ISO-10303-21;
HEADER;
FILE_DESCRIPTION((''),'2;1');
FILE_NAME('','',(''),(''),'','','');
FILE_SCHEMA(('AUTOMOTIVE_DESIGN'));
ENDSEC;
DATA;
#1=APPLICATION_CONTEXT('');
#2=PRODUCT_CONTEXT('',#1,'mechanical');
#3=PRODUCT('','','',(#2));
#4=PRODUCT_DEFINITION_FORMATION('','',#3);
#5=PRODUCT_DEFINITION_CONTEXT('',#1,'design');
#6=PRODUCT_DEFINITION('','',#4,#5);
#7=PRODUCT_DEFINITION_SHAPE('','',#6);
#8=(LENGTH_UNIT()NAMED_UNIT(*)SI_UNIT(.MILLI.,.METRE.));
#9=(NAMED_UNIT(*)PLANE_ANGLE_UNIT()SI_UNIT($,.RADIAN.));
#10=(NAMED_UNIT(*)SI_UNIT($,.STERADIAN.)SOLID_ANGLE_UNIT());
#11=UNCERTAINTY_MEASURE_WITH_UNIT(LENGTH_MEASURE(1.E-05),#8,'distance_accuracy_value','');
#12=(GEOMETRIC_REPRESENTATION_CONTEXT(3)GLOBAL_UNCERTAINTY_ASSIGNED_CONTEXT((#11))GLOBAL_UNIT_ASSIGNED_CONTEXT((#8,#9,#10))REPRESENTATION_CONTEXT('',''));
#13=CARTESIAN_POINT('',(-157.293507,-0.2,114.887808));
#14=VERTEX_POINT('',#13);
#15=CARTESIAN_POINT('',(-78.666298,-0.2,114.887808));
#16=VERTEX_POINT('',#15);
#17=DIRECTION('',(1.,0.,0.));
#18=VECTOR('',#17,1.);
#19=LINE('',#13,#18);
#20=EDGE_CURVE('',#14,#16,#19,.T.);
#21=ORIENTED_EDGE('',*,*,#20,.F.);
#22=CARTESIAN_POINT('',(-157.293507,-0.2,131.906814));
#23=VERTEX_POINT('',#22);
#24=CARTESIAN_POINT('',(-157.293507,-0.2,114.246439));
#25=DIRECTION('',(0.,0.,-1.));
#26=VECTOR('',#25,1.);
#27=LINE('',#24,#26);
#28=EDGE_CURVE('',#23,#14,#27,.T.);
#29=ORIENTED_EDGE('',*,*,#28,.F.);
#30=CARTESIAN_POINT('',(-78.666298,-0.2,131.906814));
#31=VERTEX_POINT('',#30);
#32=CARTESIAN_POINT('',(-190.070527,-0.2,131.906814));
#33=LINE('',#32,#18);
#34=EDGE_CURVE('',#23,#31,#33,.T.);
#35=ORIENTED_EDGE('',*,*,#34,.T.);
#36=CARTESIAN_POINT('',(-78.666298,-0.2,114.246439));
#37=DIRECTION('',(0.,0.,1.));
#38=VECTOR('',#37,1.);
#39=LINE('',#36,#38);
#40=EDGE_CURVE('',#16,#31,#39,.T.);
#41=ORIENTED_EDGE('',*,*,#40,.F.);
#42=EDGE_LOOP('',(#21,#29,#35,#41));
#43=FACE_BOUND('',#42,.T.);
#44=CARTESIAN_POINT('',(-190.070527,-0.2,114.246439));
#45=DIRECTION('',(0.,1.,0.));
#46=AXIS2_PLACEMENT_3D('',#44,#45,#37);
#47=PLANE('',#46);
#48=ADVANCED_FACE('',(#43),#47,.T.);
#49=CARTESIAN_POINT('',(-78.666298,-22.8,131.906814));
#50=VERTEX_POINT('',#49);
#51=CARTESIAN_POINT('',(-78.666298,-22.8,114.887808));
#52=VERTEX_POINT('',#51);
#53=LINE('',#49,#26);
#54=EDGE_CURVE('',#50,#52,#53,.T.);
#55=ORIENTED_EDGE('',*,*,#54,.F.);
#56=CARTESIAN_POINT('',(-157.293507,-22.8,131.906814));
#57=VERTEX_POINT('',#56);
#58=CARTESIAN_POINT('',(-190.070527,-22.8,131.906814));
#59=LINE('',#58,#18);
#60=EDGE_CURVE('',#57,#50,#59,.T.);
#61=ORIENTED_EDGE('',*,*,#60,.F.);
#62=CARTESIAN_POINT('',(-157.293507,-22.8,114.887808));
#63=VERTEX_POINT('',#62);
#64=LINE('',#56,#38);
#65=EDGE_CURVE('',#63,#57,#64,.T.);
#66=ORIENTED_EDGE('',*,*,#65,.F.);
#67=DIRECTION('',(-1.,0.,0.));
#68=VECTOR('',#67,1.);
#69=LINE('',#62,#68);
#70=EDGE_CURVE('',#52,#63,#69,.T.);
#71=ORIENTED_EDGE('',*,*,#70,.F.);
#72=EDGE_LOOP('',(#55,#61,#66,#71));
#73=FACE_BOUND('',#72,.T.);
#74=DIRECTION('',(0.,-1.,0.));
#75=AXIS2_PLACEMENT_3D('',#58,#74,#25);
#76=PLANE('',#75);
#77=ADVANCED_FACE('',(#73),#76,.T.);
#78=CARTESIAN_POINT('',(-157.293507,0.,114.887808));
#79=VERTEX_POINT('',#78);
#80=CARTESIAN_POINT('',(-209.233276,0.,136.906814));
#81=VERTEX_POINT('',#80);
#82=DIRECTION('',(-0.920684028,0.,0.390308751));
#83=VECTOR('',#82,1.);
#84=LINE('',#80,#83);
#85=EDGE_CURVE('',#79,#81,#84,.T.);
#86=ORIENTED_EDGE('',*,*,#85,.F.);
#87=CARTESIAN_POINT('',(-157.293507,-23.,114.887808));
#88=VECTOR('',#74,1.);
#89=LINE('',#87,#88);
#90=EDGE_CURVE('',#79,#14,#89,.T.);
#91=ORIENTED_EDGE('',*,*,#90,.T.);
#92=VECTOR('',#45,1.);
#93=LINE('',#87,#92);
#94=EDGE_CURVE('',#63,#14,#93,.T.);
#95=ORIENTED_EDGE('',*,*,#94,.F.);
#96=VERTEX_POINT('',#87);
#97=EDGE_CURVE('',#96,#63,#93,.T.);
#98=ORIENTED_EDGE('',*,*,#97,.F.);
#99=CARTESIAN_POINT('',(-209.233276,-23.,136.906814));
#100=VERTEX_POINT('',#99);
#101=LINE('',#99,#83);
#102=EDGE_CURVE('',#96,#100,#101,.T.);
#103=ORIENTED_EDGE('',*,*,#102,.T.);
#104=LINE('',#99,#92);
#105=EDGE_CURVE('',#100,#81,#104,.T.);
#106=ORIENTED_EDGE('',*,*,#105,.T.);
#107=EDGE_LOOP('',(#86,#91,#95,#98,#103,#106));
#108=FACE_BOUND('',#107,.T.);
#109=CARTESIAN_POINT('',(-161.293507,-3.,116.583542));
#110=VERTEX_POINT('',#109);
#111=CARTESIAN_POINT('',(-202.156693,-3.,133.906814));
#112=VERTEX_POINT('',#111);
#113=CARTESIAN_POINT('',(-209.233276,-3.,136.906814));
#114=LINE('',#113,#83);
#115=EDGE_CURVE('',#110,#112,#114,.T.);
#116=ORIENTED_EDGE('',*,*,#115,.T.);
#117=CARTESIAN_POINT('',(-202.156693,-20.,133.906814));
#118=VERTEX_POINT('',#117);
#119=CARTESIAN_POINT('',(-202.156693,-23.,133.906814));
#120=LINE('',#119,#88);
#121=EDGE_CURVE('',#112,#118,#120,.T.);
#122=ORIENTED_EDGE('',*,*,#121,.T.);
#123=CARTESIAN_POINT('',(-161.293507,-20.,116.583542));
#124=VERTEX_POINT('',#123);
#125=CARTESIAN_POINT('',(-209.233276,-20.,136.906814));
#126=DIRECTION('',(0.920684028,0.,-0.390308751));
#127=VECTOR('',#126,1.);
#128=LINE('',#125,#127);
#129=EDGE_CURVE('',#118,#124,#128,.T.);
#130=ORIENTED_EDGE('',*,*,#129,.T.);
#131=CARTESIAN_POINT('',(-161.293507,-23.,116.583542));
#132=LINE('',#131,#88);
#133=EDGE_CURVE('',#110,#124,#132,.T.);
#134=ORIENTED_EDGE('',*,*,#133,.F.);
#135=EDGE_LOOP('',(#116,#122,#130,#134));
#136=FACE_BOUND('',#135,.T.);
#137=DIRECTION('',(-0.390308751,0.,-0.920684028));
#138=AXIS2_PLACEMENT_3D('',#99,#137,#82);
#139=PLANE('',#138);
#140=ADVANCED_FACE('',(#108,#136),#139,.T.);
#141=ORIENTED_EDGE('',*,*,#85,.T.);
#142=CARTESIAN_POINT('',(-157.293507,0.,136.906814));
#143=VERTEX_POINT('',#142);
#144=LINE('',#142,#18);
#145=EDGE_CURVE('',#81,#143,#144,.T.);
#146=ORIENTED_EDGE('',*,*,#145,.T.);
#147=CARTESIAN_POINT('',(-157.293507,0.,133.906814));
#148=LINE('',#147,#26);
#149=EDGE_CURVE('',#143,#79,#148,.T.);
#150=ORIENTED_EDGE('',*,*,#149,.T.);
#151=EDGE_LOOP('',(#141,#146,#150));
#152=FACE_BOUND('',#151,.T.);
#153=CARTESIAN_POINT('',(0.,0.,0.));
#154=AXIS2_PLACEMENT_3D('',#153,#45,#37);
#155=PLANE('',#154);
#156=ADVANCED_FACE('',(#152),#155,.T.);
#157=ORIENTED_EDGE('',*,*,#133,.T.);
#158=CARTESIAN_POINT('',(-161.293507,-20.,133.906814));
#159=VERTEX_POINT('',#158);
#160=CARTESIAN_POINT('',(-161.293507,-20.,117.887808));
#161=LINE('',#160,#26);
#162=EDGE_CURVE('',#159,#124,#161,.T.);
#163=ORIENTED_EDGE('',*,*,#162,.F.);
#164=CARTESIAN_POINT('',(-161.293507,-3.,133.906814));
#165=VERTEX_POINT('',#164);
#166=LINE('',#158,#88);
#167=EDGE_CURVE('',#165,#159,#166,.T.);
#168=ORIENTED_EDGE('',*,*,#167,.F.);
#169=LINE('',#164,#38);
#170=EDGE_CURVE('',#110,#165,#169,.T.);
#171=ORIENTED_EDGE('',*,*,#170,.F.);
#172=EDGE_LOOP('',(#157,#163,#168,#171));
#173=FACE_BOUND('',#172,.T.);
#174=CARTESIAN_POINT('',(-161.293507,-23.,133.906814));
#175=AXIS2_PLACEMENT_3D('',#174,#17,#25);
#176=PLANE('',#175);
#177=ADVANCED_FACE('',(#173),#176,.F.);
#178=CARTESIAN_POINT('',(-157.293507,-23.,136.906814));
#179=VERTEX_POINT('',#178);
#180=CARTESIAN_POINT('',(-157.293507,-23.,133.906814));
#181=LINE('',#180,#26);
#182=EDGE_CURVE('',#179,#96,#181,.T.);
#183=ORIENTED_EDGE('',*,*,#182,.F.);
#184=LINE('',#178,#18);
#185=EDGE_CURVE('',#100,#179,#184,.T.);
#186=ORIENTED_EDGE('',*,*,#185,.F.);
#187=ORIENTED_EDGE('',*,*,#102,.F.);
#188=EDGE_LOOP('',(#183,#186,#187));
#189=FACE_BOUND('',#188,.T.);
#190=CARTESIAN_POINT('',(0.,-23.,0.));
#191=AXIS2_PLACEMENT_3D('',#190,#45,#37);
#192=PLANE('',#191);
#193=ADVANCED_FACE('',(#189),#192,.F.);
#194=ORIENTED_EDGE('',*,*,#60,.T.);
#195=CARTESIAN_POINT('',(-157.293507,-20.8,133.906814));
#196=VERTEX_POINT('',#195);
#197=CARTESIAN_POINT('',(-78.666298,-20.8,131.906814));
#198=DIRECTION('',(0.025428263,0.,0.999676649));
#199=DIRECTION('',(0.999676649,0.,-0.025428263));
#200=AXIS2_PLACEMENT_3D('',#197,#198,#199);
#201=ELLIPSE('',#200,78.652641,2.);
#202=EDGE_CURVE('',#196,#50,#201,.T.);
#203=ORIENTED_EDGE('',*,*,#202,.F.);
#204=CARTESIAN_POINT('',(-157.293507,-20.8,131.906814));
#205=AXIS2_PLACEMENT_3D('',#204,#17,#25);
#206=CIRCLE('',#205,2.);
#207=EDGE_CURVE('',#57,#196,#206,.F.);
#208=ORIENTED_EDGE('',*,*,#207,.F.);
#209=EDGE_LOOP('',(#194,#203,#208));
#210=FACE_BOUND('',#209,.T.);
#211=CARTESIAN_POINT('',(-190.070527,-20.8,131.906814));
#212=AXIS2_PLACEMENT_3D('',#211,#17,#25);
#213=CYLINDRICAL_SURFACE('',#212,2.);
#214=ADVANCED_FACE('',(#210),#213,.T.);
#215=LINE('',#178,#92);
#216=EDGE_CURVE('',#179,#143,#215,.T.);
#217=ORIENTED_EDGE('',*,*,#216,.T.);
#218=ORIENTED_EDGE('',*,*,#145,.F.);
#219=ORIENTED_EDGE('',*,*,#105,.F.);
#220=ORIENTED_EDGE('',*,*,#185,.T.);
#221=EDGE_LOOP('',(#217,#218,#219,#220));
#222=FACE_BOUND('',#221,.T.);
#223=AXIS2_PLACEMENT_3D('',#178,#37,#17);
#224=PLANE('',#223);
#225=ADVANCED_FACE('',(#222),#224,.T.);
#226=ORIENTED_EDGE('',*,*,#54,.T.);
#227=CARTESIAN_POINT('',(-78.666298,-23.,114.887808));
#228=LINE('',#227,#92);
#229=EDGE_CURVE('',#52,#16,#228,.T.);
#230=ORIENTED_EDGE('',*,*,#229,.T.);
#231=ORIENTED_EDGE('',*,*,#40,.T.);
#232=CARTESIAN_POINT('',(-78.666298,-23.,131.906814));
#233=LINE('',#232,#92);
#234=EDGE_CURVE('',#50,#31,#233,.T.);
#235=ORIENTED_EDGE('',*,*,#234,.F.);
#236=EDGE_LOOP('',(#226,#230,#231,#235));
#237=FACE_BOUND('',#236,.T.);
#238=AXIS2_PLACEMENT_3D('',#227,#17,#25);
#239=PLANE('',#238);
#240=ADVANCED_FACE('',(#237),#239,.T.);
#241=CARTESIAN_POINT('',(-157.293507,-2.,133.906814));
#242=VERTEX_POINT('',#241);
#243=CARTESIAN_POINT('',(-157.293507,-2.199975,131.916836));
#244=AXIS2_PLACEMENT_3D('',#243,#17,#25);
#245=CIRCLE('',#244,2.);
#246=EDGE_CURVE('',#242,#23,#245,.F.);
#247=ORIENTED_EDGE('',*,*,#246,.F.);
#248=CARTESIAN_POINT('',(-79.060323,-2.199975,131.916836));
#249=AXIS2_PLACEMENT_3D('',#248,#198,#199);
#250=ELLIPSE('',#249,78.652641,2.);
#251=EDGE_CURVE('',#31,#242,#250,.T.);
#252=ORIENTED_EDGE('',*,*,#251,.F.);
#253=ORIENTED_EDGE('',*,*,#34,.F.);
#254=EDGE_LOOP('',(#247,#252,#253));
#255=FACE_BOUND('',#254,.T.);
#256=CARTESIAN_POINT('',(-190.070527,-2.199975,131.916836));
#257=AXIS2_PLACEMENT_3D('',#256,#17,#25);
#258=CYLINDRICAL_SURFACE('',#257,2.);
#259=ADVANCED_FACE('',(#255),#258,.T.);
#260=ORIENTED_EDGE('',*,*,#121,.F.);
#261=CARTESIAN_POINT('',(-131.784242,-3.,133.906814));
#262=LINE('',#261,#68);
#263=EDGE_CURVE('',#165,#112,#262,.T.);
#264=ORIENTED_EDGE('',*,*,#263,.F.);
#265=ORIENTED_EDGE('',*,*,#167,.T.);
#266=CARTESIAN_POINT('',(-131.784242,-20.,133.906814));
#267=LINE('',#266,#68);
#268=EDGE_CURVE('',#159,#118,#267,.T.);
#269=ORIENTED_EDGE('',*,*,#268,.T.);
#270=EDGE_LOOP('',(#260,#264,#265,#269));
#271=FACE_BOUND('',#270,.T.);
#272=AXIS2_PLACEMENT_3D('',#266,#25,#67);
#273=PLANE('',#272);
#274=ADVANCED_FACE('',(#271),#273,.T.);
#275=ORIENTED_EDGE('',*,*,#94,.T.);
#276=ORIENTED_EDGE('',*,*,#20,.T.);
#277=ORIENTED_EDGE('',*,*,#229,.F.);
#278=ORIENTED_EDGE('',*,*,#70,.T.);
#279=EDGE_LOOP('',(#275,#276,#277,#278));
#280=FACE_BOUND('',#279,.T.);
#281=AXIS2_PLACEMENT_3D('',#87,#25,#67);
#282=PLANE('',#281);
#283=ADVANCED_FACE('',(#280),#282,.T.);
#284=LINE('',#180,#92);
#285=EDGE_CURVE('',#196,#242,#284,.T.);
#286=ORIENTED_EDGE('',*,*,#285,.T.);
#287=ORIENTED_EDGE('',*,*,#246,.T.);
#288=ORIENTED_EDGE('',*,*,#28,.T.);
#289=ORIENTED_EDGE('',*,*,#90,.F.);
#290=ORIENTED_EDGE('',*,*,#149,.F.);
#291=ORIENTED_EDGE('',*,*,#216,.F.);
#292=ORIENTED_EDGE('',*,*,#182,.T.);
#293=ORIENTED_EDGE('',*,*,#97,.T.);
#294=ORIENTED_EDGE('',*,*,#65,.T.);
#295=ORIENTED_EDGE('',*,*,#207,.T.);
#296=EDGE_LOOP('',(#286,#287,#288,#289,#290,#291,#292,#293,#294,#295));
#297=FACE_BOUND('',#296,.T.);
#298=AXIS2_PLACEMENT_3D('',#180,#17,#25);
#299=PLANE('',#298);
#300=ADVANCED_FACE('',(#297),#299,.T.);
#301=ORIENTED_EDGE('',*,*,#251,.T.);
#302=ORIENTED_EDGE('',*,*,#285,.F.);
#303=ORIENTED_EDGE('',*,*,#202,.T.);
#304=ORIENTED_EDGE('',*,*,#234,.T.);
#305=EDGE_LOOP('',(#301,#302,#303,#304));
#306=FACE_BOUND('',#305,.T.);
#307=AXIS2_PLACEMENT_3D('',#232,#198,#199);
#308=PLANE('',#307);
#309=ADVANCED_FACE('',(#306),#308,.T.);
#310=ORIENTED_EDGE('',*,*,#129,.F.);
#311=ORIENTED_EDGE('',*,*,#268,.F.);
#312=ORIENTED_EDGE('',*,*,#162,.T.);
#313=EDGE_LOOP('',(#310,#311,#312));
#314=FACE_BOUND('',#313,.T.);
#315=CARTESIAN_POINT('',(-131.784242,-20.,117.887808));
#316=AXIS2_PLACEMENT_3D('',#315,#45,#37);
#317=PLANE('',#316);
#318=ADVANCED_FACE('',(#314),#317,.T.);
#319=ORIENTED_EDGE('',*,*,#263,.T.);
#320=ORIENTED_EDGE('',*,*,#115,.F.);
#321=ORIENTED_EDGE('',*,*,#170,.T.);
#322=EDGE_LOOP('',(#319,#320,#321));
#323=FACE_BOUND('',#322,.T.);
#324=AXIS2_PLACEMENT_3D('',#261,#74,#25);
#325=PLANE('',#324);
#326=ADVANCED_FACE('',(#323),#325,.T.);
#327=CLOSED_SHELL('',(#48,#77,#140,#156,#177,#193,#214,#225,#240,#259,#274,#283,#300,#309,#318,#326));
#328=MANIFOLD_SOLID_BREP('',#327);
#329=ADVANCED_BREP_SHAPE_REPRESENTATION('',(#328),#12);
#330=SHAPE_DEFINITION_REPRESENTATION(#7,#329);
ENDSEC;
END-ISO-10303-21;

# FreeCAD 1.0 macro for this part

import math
import FreeCAD as App
import Part
import Sketcher

doc = App.newDocument("Part")
body = doc.addObject("PartDesign::Body", "Body")

# Sketch on XZ plane
sketch1 = body.newObject("Sketcher::SketchObject", "Sketch")
sketch1.AttachmentSupport = (doc.getObject("XZ_Plane"), [""])
sketch1.MapMode = "FlatFace"
sketch1.addGeometry(Part.LineSegment(App.Vector(-157.293507, 114.887808, 0), App.Vector(-209.233276, 136.906814, 0)), False)
sketch1.addGeometry(Part.LineSegment(App.Vector(-209.233276, 136.906814, 0), App.Vector(-157.293507, 136.906814, 0)), False)
sketch1.addGeometry(Part.LineSegment(App.Vector(-157.293507, 136.906814, 0), App.Vector(-157.293507, 133.906814, 0)), False)
sketch1.addGeometry(Part.LineSegment(App.Vector(-157.293507, 133.906814, 0), App.Vector(-78.666298, 131.906814, 0)), False)
sketch1.addGeometry(Part.LineSegment(App.Vector(-78.666298, 131.906814, 0), App.Vector(-78.666298, 114.887808, 0)), False)
sketch1.addGeometry(Part.LineSegment(App.Vector(-78.666298, 114.887808, 0), App.Vector(-157.293507, 114.887808, 0)), False)
sketch1.addConstraint(Sketcher.Constraint("Coincident", 0, 2, 1, 1))
sketch1.addConstraint(Sketcher.Constraint("Coincident", 1, 2, 2, 1))
sketch1.addConstraint(Sketcher.Constraint("Coincident", 2, 2, 3, 1))
sketch1.addConstraint(Sketcher.Constraint("Coincident", 3, 2, 4, 1))
sketch1.addConstraint(Sketcher.Constraint("Coincident", 4, 2, 5, 1))
sketch1.addConstraint(Sketcher.Constraint("Coincident", 5, 2, 0, 1))
sketch1.addConstraint(Sketcher.Constraint("Horizontal", 1))
sketch1.addConstraint(Sketcher.Constraint("Vertical", 2))
sketch1.addConstraint(Sketcher.Constraint("Vertical", 4))
sketch1.addConstraint(Sketcher.Constraint("Horizontal", 5))
sketch1.addConstraint(Sketcher.Constraint("Vertical", 2, 2, 5, 2))
sketch1.addConstraint(Sketcher.Constraint("DistanceY", 2, 2, 2, 1, 3.0))
sketch1.addConstraint(Sketcher.Constraint("DistanceY", 3, 2, 2, 2, 2.0))
sketch1.addConstraint(Sketcher.Constraint("DistanceX", 1, 1, 1, 2, 51.939769))
sketch1.addConstraint(Sketcher.Constraint("DistanceX", 5, 2, 5, 1, 78.627209))
sketch1.addConstraint(Sketcher.Constraint("DistanceX", 3, 2, -1, 1, 78.666298))
sketch1.addConstraint(Sketcher.Constraint("DistanceY", 4, 2, 4, 1, 17.019005))
sketch1.addConstraint(Sketcher.Constraint("DistanceY", -1, 1, 4, 2, 114.887808))
pad1 = body.newObject("PartDesign::Pad", "Pad")
pad1.Profile = sketch1
pad1.Length = 23

# Sketch on YZ plane
sketch2 = body.newObject("Sketcher::SketchObject", "Sketch001")
sketch2.AttachmentSupport = (doc.getObject("YZ_Plane"), [""])
sketch2.MapMode = "FlatFace"
sketch2.AttachmentOffset = App.Placement(App.Vector(0, 0, -209.233276), App.Rotation())
sketch2.addGeometry(Part.LineSegment(App.Vector(-20, 133.906814, 0), App.Vector(-20, 114.887808, 0)), False)
sketch2.addGeometry(Part.LineSegment(App.Vector(-20, 114.887808, 0), App.Vector(-3, 114.887808, 0)), False)
sketch2.addGeometry(Part.LineSegment(App.Vector(-3, 114.887808, 0), App.Vector(-3, 133.906814, 0)), False)
sketch2.addGeometry(Part.LineSegment(App.Vector(-3, 133.906814, 0), App.Vector(-20, 133.906814, 0)), False)
sketch2.addConstraint(Sketcher.Constraint("Coincident", 0, 2, 1, 1))
sketch2.addConstraint(Sketcher.Constraint("Coincident", 1, 2, 2, 1))
sketch2.addConstraint(Sketcher.Constraint("Coincident", 2, 2, 3, 1))
sketch2.addConstraint(Sketcher.Constraint("Coincident", 3, 2, 0, 1))
sketch2.addConstraint(Sketcher.Constraint("Vertical", 0))
sketch2.addConstraint(Sketcher.Constraint("Horizontal", 1))
sketch2.addConstraint(Sketcher.Constraint("Vertical", 2))
sketch2.addConstraint(Sketcher.Constraint("Horizontal", 3))
sketch2.addConstraint(Sketcher.Constraint("DistanceX", 1, 1, 1, 2, 17.0))
sketch2.addConstraint(Sketcher.Constraint("DistanceX", 0, 2, -1, 1, 20.0))
sketch2.addConstraint(Sketcher.Constraint("DistanceY", 0, 2, 0, 1, 19.019005))
sketch2.addConstraint(Sketcher.Constraint("DistanceY", -1, 1, 0, 2, 114.887808))
pocket1 = body.newObject("PartDesign::Pocket", "Pocket")
pocket1.Profile = sketch2
pocket1.Length = 47.939769
pocket1.Reversed = True

# Sketch on YZ plane
sketch3 = body.newObject("Sketcher::SketchObject", "Sketch002")
sketch3.AttachmentSupport = (doc.getObject("YZ_Plane"), [""])
sketch3.MapMode = "FlatFace"
sketch3.AttachmentOffset = App.Placement(App.Vector(0, 0, -78.666298), App.Rotation())
sketch3.addGeometry(Part.LineSegment(App.Vector(-1.954954, 134.906814, 0), App.Vector(-20.8, 134.906814, 0)), False)
sketch3.addGeometry(Part.ArcOfCircle(Part.Circle(App.Vector(-20.8, 131.906814, 0), App.Vector(0, 0, 1), 3), math.radians(90), math.radians(180)), False)
sketch3.addGeometry(Part.LineSegment(App.Vector(-23.8, 131.906814, 0), App.Vector(-23.8, 113.246439, 0)), False)
sketch3.addGeometry(Part.LineSegment(App.Vector(-23.8, 113.246439, 0), App.Vector(0.8, 113.246439, 0)), False)
sketch3.addGeometry(Part.LineSegment(App.Vector(0.8, 113.246439, 0), App.Vector(0.8, 131.904561, 0)), False)
sketch3.addGeometry(Part.ArcOfCircle(Part.Circle(App.Vector(-2.199975, 131.916836, 0), App.Vector(0, 0, 1), 3), math.radians(-0.234439), math.radians(85.31523)), False)
sketch3.addGeometry(Part.LineSegment(App.Vector(-20.8, 133.906814, 0), App.Vector(-2, 133.906814, 0)), False)
sketch3.addGeometry(Part.ArcOfCircle(Part.Circle(App.Vector(-2.199975, 131.916836, 0), App.Vector(0, 0, 1), 2), math.radians(-0.287128), math.radians(84.261553)), False)
sketch3.addGeometry(Part.LineSegment(App.Vector(-0.2, 131.906814, 0), App.Vector(-0.2, 114.246439, 0)), False)
sketch3.addGeometry(Part.LineSegment(App.Vector(-0.2, 114.246439, 0), App.Vector(-22.8, 114.246439, 0)), False)
sketch3.addGeometry(Part.LineSegment(App.Vector(-22.8, 114.246439, 0), App.Vector(-22.8, 131.906814, 0)), False)
sketch3.addGeometry(Part.ArcOfCircle(Part.Circle(App.Vector(-20.8, 131.906814, 0), App.Vector(0, 0, 1), 2), math.radians(90), math.radians(180)), False)
sketch3.addConstraint(Sketcher.Constraint("Tangent", 0, 2, 1, 1))
sketch3.addConstraint(Sketcher.Constraint("Tangent", 1, 2, 2, 1))
sketch3.addConstraint(Sketcher.Constraint("Coincident", 2, 2, 3, 1))
sketch3.addConstraint(Sketcher.Constraint("Coincident", 3, 2, 4, 1))
sketch3.addConstraint(Sketcher.Constraint("Coincident", 4, 2, 5, 1))
sketch3.addConstraint(Sketcher.Constraint("Coincident", 5, 2, 0, 1))
sketch3.addConstraint(Sketcher.Constraint("Coincident", 6, 2, 7, 2))
sketch3.addConstraint(Sketcher.Constraint("Coincident", 7, 1, 8, 1))
sketch3.addConstraint(Sketcher.Constraint("Coincident", 8, 2, 9, 1))
sketch3.addConstraint(Sketcher.Constraint("Coincident", 9, 2, 10, 1))
sketch3.addConstraint(Sketcher.Constraint("Tangent", 10, 2, 11, 2))
sketch3.addConstraint(Sketcher.Constraint("Tangent", 11, 1, 6, 1))
sketch3.addConstraint(Sketcher.Constraint("Horizontal", 0))
sketch3.addConstraint(Sketcher.Constraint("Vertical", 2))
sketch3.addConstraint(Sketcher.Constraint("Horizontal", 3))
sketch3.addConstraint(Sketcher.Constraint("Vertical", 4))
sketch3.addConstraint(Sketcher.Constraint("Horizontal", 6))
sketch3.addConstraint(Sketcher.Constraint("Vertical", 8))
sketch3.addConstraint(Sketcher.Constraint("Horizontal", 9))
sketch3.addConstraint(Sketcher.Constraint("Vertical", 10))
sketch3.addConstraint(Sketcher.Constraint("Coincident", 7, 3, 5, 3))
sketch3.addConstraint(Sketcher.Constraint("Coincident", 11, 3, 1, 3))
sketch3.addConstraint(Sketcher.Constraint("Equal", 1, 5))
sketch3.addConstraint(Sketcher.Constraint("Equal", 7, 11))
sketch3.addConstraint(Sketcher.Constraint("Horizontal", 1, 2, 7, 1))
sketch3.addConstraint(Sketcher.Constraint("Radius", 1, 3.0))
sketch3.addConstraint(Sketcher.Constraint("Radius", 7, 2.0))
sketch3.addConstraint(Sketcher.Constraint("DistanceX", 3, 1, 3, 2, 24.6))
sketch3.addConstraint(Sketcher.Constraint("DistanceX", 6, 1, 6, 2, 18.8))
sketch3.addConstraint(Sketcher.Constraint("DistanceX", 9, 2, 9, 1, 22.6))
sketch3.addConstraint(Sketcher.Constraint("DistanceX", 6, 2, -1, 1, 2.0))
sketch3.addConstraint(Sketcher.Constraint("DistanceY", 3, 2, 8, 2, 1.0))
sketch3.addConstraint(Sketcher.Constraint("DistanceY", 2, 2, 2, 1, 18.660375))
sketch3.addConstraint(Sketcher.Constraint("DistanceY", -1, 1, 2, 2, 113.246439))
pocket2 = body.newObject("PartDesign::Pocket", "Pocket001")
pocket2.Profile = sketch3
pocket2.Length = 78.627209

doc.recompute()
